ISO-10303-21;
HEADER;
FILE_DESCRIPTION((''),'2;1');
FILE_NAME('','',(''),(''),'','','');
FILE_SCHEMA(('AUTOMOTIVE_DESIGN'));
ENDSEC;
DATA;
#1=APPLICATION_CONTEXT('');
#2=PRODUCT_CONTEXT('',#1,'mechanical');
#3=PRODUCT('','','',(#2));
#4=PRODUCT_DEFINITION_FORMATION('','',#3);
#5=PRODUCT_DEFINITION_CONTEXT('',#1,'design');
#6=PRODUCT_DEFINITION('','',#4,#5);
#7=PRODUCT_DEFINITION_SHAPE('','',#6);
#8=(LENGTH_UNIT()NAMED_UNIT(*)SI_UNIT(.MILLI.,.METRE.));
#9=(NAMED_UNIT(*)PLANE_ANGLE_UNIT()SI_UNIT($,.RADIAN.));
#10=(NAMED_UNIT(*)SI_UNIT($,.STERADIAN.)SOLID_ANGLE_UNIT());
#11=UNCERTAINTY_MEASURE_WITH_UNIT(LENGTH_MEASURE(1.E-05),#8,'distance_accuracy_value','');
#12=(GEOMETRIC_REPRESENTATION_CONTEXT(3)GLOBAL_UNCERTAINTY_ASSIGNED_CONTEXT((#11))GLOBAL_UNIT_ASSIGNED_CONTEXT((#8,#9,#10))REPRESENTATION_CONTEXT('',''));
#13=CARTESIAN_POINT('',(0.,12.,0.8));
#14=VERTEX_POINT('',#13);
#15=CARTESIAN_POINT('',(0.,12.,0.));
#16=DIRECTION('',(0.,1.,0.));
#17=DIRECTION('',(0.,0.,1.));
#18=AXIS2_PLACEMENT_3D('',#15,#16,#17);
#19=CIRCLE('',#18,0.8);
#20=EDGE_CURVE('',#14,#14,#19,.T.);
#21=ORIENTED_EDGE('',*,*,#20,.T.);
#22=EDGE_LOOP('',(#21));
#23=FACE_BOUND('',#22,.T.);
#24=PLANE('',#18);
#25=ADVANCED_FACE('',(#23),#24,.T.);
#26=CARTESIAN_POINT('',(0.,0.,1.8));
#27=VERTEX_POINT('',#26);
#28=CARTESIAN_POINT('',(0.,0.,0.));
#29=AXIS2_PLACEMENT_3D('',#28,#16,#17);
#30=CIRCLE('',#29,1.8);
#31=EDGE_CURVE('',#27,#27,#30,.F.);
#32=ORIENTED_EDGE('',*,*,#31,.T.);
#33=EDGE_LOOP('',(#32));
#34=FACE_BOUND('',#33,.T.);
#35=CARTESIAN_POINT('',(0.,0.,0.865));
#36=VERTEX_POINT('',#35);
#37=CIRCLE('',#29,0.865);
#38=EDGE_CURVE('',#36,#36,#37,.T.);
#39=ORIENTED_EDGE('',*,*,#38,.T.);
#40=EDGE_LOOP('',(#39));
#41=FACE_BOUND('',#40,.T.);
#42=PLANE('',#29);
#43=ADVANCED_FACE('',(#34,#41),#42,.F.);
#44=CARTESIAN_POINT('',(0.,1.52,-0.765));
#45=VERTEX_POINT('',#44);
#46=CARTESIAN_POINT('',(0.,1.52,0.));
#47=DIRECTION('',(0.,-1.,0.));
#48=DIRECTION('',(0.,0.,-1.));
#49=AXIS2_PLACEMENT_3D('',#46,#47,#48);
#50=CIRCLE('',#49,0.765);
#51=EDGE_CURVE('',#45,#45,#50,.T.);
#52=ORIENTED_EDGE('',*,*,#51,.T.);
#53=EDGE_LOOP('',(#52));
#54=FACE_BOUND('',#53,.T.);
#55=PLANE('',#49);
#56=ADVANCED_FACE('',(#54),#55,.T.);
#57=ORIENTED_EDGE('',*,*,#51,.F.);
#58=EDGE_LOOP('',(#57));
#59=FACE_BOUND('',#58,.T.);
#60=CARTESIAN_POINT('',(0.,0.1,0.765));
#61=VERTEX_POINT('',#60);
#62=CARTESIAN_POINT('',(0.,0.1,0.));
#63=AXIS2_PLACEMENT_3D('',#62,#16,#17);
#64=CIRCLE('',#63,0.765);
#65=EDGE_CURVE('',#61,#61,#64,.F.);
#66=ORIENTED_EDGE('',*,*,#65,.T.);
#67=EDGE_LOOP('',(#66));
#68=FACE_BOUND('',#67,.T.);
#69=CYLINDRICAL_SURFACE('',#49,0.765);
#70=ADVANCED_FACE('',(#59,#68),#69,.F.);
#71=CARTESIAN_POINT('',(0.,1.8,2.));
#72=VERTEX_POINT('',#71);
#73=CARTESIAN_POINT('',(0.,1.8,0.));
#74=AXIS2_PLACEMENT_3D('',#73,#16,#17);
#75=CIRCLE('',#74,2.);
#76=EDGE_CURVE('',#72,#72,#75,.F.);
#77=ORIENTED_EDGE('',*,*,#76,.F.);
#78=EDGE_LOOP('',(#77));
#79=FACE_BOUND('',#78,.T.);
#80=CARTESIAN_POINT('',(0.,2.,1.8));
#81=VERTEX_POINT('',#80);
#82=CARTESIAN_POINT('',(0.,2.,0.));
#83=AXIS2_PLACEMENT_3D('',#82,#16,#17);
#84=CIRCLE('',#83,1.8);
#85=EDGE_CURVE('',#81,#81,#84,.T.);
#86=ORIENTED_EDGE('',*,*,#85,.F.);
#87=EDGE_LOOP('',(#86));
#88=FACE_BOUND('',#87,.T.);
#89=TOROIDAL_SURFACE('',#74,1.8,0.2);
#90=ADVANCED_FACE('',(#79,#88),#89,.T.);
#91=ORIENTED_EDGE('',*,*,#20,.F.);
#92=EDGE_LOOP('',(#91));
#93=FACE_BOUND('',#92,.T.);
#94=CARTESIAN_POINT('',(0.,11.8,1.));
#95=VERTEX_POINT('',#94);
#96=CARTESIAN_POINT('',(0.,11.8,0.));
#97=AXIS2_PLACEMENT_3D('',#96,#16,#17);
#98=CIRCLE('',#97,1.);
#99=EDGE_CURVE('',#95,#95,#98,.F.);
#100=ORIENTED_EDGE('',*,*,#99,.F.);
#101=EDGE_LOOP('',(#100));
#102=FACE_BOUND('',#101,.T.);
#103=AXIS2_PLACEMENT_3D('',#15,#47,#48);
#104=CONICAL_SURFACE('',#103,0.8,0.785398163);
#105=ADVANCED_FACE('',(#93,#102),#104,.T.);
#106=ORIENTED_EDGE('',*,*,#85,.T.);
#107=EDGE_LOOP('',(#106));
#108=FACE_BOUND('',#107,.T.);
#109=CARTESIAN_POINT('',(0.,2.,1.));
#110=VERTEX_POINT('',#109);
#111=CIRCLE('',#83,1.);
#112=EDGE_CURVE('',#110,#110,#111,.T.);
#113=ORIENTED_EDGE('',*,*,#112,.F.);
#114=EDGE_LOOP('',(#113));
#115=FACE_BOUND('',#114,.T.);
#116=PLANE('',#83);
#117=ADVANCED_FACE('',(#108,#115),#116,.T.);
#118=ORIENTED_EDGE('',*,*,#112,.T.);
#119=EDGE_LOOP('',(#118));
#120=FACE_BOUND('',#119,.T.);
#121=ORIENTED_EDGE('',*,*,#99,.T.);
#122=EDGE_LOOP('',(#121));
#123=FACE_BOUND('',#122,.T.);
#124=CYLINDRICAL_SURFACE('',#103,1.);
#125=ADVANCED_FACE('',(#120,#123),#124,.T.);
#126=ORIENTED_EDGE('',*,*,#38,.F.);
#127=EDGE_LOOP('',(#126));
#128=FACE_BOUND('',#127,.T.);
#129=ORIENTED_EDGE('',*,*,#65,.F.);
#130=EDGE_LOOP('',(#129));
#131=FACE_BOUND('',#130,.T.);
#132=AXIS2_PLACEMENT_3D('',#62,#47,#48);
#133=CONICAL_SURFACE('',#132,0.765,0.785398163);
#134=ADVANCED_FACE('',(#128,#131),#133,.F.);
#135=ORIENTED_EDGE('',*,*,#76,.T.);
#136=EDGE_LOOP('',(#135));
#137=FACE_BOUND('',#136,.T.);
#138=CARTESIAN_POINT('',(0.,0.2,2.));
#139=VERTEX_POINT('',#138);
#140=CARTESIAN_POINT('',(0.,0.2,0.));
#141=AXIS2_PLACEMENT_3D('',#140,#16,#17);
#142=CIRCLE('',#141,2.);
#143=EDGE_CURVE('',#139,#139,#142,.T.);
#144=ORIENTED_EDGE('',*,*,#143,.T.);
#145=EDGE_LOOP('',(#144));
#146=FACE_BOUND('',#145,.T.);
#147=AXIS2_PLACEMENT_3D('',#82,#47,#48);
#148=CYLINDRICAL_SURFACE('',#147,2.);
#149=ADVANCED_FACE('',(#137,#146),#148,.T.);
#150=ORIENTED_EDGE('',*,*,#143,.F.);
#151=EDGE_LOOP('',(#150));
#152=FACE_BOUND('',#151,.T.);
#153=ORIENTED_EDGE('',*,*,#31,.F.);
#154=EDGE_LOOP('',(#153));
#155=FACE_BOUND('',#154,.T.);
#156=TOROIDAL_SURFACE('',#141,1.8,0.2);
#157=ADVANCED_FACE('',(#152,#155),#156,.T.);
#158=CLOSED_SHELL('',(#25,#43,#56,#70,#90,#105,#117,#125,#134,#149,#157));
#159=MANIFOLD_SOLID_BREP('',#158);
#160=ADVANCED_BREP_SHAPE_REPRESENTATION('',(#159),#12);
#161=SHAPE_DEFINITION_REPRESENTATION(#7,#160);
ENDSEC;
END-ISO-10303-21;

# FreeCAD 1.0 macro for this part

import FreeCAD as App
import Part
import Sketcher
from FreeCAD import Vector
Q = App.Units.Quantity


def edges_at(feature, points):
    """Names of the edges that pass closest to the given points."""
    edges = feature.Shape.Edges
    near = lambda p: min(range(len(edges)), key=lambda i: edges[i].distToShape(Part.Vertex(*p))[0])
    return sorted({f"Edge{near(p) + 1}" for p in points})

doc = App.newDocument("Part")
body = doc.addObject("PartDesign::Body", "Body")

sketch1 = body.newObject("Sketcher::SketchObject", "Sketch")
sketch1.AttachmentSupport = (doc.getObject("XZ_Plane"), [""])
sketch1.MapMode = "FlatFace"
sketch1.addGeometry(Part.Circle(Vector(0, 0, 0), Vector(0, 0, 1), 2), False)
sketch1.addConstraint(Sketcher.Constraint("Coincident", 0, 3, -1, 1))
sketch1.addConstraint(Sketcher.Constraint("Diameter", 0, Q("4 mm")))
pad1 = body.newObject("PartDesign::Pad", "Pad")
pad1.Profile = sketch1
pad1.Length = 2
pad1.Reversed = True

sketch2 = body.newObject("Sketcher::SketchObject", "Sketch001")
sketch2.AttachmentSupport = (doc.getObject("XZ_Plane"), [""])
sketch2.MapMode = "FlatFace"
sketch2.AttachmentOffset = App.Placement(Vector(0, 0, -2), App.Rotation())
sketch2.addGeometry(Part.Circle(Vector(0, 0, 0), Vector(0, 0, 1), 1), False)
sketch2.addConstraint(Sketcher.Constraint("Coincident", 0, 3, -1, 1))
sketch2.addConstraint(Sketcher.Constraint("Diameter", 0, Q("2 mm")))
pad2 = body.newObject("PartDesign::Pad", "Pad001")
pad2.Profile = sketch2
pad2.Length = 10
pad2.Reversed = True
doc.recompute()

fillet = body.newObject("PartDesign::Fillet", "Fillet")
fillet.Base = (pad2, edges_at(pad2, [(0, 0, -2), (0, 2, -2)]))
fillet.Radius = 0.2

sketch3 = body.newObject("Sketcher::SketchObject", "Sketch002")
sketch3.AttachmentSupport = (doc.getObject("XZ_Plane"), [""])
sketch3.MapMode = "FlatFace"
sketch3.addGeometry(Part.Circle(Vector(0, 0, 0), Vector(0, 0, 1), 0.765), False)
sketch3.addConstraint(Sketcher.Constraint("Coincident", 0, 3, -1, 1))
sketch3.addConstraint(Sketcher.Constraint("Diameter", 0, Q("1.53 mm")))
pocket1 = body.newObject("PartDesign::Pocket", "Pocket")
pocket1.Profile = sketch3
pocket1.Length = 1.52
doc.recompute()

chamfer = body.newObject("PartDesign::Chamfer", "Chamfer")
chamfer.Base = (pocket1, edges_at(pocket1, [(0, 0, 0.765)]))
chamfer.Size = 0.1
doc.recompute()

chamfer2 = body.newObject("PartDesign::Chamfer", "Chamfer001")
chamfer2.Base = (chamfer, edges_at(chamfer, [(0, 12, -1)]))
chamfer2.Size = 0.2

doc.recompute()
